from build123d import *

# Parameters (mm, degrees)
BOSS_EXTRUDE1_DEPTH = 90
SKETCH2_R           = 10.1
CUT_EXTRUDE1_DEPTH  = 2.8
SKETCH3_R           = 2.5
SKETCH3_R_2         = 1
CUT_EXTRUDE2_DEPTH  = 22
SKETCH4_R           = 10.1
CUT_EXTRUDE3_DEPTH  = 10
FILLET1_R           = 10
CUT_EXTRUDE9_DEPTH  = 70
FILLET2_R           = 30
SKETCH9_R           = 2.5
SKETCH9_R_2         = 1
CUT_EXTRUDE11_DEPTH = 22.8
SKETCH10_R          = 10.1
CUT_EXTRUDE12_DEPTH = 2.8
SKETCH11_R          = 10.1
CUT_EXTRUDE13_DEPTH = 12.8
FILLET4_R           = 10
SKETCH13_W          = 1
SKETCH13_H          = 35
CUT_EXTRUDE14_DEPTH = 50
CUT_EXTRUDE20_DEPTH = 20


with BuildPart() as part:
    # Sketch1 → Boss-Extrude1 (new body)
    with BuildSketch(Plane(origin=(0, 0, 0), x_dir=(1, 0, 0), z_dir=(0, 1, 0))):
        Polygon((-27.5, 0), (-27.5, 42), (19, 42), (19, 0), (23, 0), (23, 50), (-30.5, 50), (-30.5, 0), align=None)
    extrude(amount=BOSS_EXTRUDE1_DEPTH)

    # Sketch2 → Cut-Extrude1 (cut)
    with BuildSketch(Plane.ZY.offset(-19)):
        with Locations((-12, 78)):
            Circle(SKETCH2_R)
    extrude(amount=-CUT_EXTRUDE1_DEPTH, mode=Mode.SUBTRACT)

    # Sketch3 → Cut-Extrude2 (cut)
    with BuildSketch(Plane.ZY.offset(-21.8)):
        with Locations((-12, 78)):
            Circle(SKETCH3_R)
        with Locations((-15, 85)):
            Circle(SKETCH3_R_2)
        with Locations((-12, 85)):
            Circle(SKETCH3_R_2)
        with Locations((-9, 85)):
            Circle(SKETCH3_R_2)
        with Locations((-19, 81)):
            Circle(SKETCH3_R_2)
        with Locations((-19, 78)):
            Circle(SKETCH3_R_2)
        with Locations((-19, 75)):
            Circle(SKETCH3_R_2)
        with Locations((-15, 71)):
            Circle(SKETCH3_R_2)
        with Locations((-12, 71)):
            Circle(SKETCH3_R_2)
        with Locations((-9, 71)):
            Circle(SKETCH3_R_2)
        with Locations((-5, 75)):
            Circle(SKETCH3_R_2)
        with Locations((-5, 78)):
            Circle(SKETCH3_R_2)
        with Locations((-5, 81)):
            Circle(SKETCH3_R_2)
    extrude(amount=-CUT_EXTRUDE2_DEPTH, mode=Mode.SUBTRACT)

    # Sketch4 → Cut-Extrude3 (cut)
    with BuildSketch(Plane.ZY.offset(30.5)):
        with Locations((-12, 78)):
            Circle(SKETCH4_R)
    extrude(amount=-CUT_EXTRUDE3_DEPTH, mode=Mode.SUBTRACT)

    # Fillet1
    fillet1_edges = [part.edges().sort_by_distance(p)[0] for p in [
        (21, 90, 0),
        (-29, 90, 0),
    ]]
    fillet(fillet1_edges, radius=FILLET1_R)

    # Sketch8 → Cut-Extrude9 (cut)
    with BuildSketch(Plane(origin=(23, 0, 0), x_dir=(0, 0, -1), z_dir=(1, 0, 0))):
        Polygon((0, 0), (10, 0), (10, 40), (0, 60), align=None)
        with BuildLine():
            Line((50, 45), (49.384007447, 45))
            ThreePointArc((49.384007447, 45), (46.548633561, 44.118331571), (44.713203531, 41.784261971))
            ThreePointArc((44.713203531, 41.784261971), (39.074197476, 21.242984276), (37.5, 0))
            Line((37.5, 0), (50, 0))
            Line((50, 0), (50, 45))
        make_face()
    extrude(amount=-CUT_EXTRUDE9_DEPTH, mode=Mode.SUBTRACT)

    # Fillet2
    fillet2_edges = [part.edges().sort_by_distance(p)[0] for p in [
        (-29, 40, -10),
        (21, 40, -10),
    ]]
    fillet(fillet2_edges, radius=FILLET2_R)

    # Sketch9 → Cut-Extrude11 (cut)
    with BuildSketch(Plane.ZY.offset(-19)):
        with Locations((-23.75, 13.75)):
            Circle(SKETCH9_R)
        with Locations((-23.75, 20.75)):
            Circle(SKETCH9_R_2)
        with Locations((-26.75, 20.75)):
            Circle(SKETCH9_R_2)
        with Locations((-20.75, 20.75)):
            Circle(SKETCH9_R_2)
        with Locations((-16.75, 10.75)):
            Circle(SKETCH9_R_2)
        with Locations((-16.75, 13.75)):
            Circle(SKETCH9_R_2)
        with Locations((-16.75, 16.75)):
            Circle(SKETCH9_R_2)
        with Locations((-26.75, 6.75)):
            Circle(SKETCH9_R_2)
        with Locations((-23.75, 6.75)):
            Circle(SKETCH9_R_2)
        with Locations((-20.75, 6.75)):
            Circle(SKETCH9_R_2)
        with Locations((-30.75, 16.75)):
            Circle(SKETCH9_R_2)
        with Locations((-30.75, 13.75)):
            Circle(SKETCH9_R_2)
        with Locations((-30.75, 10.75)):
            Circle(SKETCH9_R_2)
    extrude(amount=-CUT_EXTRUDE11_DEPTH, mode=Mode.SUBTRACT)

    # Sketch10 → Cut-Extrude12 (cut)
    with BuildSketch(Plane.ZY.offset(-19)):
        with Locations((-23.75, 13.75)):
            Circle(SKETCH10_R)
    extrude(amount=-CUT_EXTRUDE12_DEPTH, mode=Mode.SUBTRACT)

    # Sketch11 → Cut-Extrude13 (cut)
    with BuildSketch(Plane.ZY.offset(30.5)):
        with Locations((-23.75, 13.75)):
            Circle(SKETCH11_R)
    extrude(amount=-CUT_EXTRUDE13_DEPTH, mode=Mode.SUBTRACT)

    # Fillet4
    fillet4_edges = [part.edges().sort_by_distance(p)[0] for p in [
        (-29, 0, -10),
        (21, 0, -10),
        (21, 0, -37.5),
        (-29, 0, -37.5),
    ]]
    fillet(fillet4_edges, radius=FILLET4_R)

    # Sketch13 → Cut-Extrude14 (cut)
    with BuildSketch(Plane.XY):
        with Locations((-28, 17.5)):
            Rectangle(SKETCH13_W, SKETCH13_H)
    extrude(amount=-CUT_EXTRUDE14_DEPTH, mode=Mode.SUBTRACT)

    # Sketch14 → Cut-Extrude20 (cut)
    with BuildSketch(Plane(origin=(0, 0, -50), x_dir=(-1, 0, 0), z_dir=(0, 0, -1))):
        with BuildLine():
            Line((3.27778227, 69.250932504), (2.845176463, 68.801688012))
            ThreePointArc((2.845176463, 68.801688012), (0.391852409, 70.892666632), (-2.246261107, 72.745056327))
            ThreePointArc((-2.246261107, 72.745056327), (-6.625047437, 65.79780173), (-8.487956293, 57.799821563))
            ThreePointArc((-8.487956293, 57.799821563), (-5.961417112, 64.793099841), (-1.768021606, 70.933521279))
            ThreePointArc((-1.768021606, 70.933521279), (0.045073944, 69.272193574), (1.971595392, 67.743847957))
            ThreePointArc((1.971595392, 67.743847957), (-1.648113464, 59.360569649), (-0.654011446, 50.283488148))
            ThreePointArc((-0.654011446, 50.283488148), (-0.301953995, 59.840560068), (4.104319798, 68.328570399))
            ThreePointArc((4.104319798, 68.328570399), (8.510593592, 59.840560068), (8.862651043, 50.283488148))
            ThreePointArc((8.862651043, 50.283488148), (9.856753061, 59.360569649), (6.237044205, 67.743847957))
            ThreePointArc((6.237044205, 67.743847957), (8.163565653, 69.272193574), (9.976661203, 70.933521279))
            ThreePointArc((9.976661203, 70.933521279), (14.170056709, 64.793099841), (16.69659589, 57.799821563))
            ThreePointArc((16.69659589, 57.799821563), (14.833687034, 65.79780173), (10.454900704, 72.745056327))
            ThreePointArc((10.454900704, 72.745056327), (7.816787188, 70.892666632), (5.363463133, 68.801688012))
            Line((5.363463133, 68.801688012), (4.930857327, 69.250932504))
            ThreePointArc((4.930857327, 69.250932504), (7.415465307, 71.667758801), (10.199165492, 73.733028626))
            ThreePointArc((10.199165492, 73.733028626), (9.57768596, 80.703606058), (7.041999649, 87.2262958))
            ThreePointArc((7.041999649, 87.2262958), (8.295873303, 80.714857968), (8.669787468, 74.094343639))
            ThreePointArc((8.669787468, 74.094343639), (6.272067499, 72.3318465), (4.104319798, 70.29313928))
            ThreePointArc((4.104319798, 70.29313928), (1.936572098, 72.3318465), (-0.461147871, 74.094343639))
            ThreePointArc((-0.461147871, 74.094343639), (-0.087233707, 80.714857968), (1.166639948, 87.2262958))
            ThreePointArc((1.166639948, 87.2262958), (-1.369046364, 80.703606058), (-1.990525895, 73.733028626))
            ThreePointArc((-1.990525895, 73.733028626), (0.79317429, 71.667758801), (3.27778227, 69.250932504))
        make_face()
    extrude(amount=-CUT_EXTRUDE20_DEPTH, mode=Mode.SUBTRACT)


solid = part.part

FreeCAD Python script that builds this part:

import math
import FreeCAD as App
import Part
import Sketcher

V = App.Vector


def edges_at(feature, points):
    """Names of the edges that pass closest to the given points."""
    edges = feature.Shape.Edges
    near = lambda p: min(range(len(edges)), key=lambda i: edges[i].distToShape(Part.Vertex(*p))[0])
    return sorted({f"Edge{near(p) + 1}" for p in points})


def add_polygon(sketch, points):
    """Adds a closed chain of lines whose ends are joined by coincident constraints."""
    first, n = sketch.GeometryCount, len(points)
    for a, b in zip(points, points[1:] + points[:1]):
        sketch.addGeometry(Part.LineSegment(App.Vector(*a, 0), App.Vector(*b, 0)), False)
    for i in range(n):
        sketch.addConstraint(Sketcher.Constraint("Coincident", first + i, 2, first + (i + 1) % n, 1))

doc = App.newDocument("Part")
body = doc.addObject("PartDesign::Body", "Body")

# Sketch on XZ plane
sketch1 = doc.addObject("Sketcher::SketchObject", "Sketch")
body.addObject(sketch1)
sketch1.AttachmentSupport = (doc.XZ_Plane, [""])
sketch1.MapMode = "FlatFace"
add_polygon(sketch1, [(-27.5, 0), (-27.5, -42), (19, -42), (19, 0), (23, 0), (23, -50), (-30.5, -50), (-30.5, 0)])  # lines 0-7
sketch1.addConstraint(Sketcher.Constraint("Vertical", 0))
sketch1.addConstraint(Sketcher.Constraint("Horizontal", 1))
sketch1.addConstraint(Sketcher.Constraint("Vertical", 2))
sketch1.addConstraint(Sketcher.Constraint("Horizontal", 3))
sketch1.addConstraint(Sketcher.Constraint("Vertical", 4))
sketch1.addConstraint(Sketcher.Constraint("Horizontal", 5))
sketch1.addConstraint(Sketcher.Constraint("Vertical", 6))
sketch1.addConstraint(Sketcher.Constraint("Horizontal", 7))
sketch1.addConstraint(Sketcher.Constraint("PointOnObject", 2, 2, -1))
sketch1.addConstraint(Sketcher.Constraint("PointOnObject", 6, 2, -1))
sketch1.addConstraint(Sketcher.Constraint("DistanceX", 3, 1, 3, 2, 4.0))
sketch1.addConstraint(Sketcher.Constraint("DistanceX", 7, 1, 7, 2, 3.0))
sketch1.addConstraint(Sketcher.Constraint("DistanceY", 0, 2, 0, 1, 42.0))
sketch1.addConstraint(Sketcher.Constraint("DistanceY", 4, 2, 4, 1, 50.0))
sketch1.addConstraint(Sketcher.Constraint("DistanceX", 1, 1, 1, 2, 46.5))
sketch1.addConstraint(Sketcher.Constraint("DistanceX", -1, 1, 1, 2, 19.0))
pad1 = doc.addObject("PartDesign::Pad", "Pad")
body.addObject(pad1)
pad1.Profile = sketch1
pad1.Length = 90
pad1.Reversed = True

# Sketch on YZ plane
sketch2 = doc.addObject("Sketcher::SketchObject", "Sketch001")
body.addObject(sketch2)
sketch2.AttachmentSupport = (doc.YZ_Plane, [""])
sketch2.MapMode = "FlatFace"
sketch2.AttachmentOffset = App.Placement(V(0, 0, 19), App.Rotation())
sketch2.addGeometry(Part.Circle(V(78, -12, 0), V(0, 0, 1), 10), False)
sketch2.addConstraint(Sketcher.Constraint("Diameter", 0, 20.2))
sketch2.addConstraint(Sketcher.Constraint("DistanceX", -1, 1, 0, 3, 78.0))
sketch2.addConstraint(Sketcher.Constraint("DistanceY", 0, 3, -1, 1, 12.0))
pocket1 = doc.addObject("PartDesign::Pocket", "Pocket")
body.addObject(pocket1)
pocket1.Profile = sketch2
pocket1.Length = 2.8
pocket1.Reversed = True

# Sketch on YZ plane
sketch3 = doc.addObject("Sketcher::SketchObject", "Sketch002")
body.addObject(sketch3)
sketch3.AttachmentSupport = (doc.YZ_Plane, [""])
sketch3.MapMode = "FlatFace"
sketch3.AttachmentOffset = App.Placement(V(0, 0, 21.8), App.Rotation())
sketch3.addGeometry(Part.Circle(V(78, -12, 0), V(0, 0, 1), 2.5), False)
sketch3.addGeometry(Part.Circle(V(85, -15, 0), V(0, 0, 1), 1), False)
sketch3.addGeometry(Part.Circle(V(85, -12, 0), V(0, 0, 1), 1), False)
sketch3.addGeometry(Part.Circle(V(85, -9, 0), V(0, 0, 1), 1), False)
sketch3.addGeometry(Part.Circle(V(81, -19, 0), V(0, 0, 1), 1), False)
sketch3.addGeometry(Part.Circle(V(78, -19, 0), V(0, 0, 1), 1), False)
sketch3.addGeometry(Part.Circle(V(75, -19, 0), V(0, 0, 1), 1), False)
sketch3.addGeometry(Part.Circle(V(71, -15, 0), V(0, 0, 1), 1), False)
sketch3.addGeometry(Part.Circle(V(71, -12, 0), V(0, 0, 1), 1), False)
sketch3.addGeometry(Part.Circle(V(71, -9, 0), V(0, 0, 1), 1), False)
sketch3.addGeometry(Part.Circle(V(75, -5, 0), V(0, 0, 1), 1), False)
sketch3.addGeometry(Part.Circle(V(78, -5, 0), V(0, 0, 1), 1), False)
sketch3.addGeometry(Part.Circle(V(81, -5, 0), V(0, 0, 1), 1), False)
sketch3.addConstraint(Sketcher.Constraint("Equal", 1, 2))
sketch3.addConstraint(Sketcher.Constraint("Equal", 2, 3))
sketch3.addConstraint(Sketcher.Constraint("Equal", 3, 4))
sketch3.addConstraint(Sketcher.Constraint("Equal", 4, 5))
sketch3.addConstraint(Sketcher.Constraint("Equal", 5, 6))
sketch3.addConstraint(Sketcher.Constraint("Equal", 6, 7))
sketch3.addConstraint(Sketcher.Constraint("Equal", 7, 8))
sketch3.addConstraint(Sketcher.Constraint("Equal", 8, 9))
sketch3.addConstraint(Sketcher.Constraint("Equal", 9, 10))
sketch3.addConstraint(Sketcher.Constraint("Equal", 10, 11))
sketch3.addConstraint(Sketcher.Constraint("Equal", 11, 12))
sketch3.addConstraint(Sketcher.Constraint("Horizontal", 0, 3, 2, 3))
sketch3.addConstraint(Sketcher.Constraint("Horizontal", 4, 3, 5, 3))
sketch3.addConstraint(Sketcher.Constraint("Horizontal", 5, 3, 6, 3))
sketch3.addConstraint(Sketcher.Constraint("Horizontal", 1, 3, 7, 3))
sketch3.addConstraint(Sketcher.Constraint("Horizontal", 2, 3, 8, 3))
sketch3.addConstraint(Sketcher.Constraint("Horizontal", 3, 3, 9, 3))
sketch3.addConstraint(Sketcher.Constraint("Horizontal", 10, 3, 11, 3))
sketch3.addConstraint(Sketcher.Constraint("Horizontal", 11, 3, 12, 3))
sketch3.addConstraint(Sketcher.Constraint("Vertical", 1, 3, 2, 3))
sketch3.addConstraint(Sketcher.Constraint("Vertical", 2, 3, 3, 3))
sketch3.addConstraint(Sketcher.Constraint("Vertical", 0, 3, 5, 3))
sketch3.addConstraint(Sketcher.Constraint("Vertical", 7, 3, 8, 3))
sketch3.addConstraint(Sketcher.Constraint("Vertical", 8, 3, 9, 3))
sketch3.addConstraint(Sketcher.Constraint("Vertical", 6, 3, 10, 3))
sketch3.addConstraint(Sketcher.Constraint("Vertical", 5, 3, 11, 3))
sketch3.addConstraint(Sketcher.Constraint("Vertical", 4, 3, 12, 3))
sketch3.addConstraint(Sketcher.Constraint("Diameter", 0, 5.0))
sketch3.addConstraint(Sketcher.Constraint("Diameter", 1, 2.0))
sketch3.addConstraint(Sketcher.Constraint("DistanceX", -1, 1, 0, 3, 78.0))
sketch3.addConstraint(Sketcher.Constraint("DistanceY", 0, 3, -1, 1, 12.0))
sketch3.addConstraint(Sketcher.Constraint("DistanceX", -1, 1, 1, 3, 85.0))
sketch3.addConstraint(Sketcher.Constraint("DistanceY", 1, 3, -1, 1, 15.0))
sketch3.addConstraint(Sketcher.Constraint("DistanceY", 3, 3, -1, 1, 9.0))
sketch3.addConstraint(Sketcher.Constraint("DistanceX", -1, 1, 4, 3, 81.0))
sketch3.addConstraint(Sketcher.Constraint("DistanceY", 4, 3, -1, 1, 19.0))
sketch3.addConstraint(Sketcher.Constraint("DistanceX", -1, 1, 6, 3, 75.0))
sketch3.addConstraint(Sketcher.Constraint("DistanceX", -1, 1, 7, 3, 71.0))
sketch3.addConstraint(Sketcher.Constraint("DistanceY", 10, 3, -1, 1, 5.0))
pocket2 = doc.addObject("PartDesign::Pocket", "Pocket001")
body.addObject(pocket2)
pocket2.Profile = sketch3
pocket2.Length = 22
pocket2.Reversed = True

# Sketch on YZ plane
sketch4 = doc.addObject("Sketcher::SketchObject", "Sketch003")
body.addObject(sketch4)
sketch4.AttachmentSupport = (doc.YZ_Plane, [""])
sketch4.MapMode = "FlatFace"
sketch4.AttachmentOffset = App.Placement(V(0, 0, -30.5), App.Rotation())
sketch4.addGeometry(Part.Circle(V(78, -12, 0), V(0, 0, 1), 10), False)
sketch4.addConstraint(Sketcher.Constraint("Diameter", 0, 20.2))
sketch4.addConstraint(Sketcher.Constraint("DistanceX", -1, 1, 0, 3, 78.0))
sketch4.addConstraint(Sketcher.Constraint("DistanceY", 0, 3, -1, 1, 12.0))
pocket3 = doc.addObject("PartDesign::Pocket", "Pocket002")
body.addObject(pocket3)
pocket3.Profile = sketch4
pocket3.Length = 10
pocket3.Reversed = True
doc.recompute()

fillet = doc.addObject("PartDesign::Fillet", "Fillet")
body.addObject(fillet)
fillet.Base = (pocket3, edges_at(pocket3, [(21, 90, 0), (-29, 90, 0)]))
fillet.Radius = 10

# Sketch on YZ plane
sketch5 = doc.addObject("Sketcher::SketchObject", "Sketch004")
body.addObject(sketch5)
sketch5.AttachmentSupport = (doc.YZ_Plane, [""])
sketch5.MapMode = "FlatFace"
sketch5.AttachmentOffset = App.Placement(V(0, 0, 23), App.Rotation())
add_polygon(sketch5, [(0, 0), (0, -10), (40, -10), (60, 0)])  # lines 0-3
sketch5.addGeometry(Part.LineSegment(V(45, -50, 0), V(45, -49.4, 0)), False)  # 4
sketch5.addGeometry(Part.ArcOfCircle(Part.Circle(V(40, -49.4, 0), V(0, 0, 1), 5), math.radians(0), math.radians(69)), False)  # 5
sketch5.addGeometry(Part.ArcOfCircle(Part.Circle(V(2.5, -147.5, 0), V(0, 0, 1), 110), math.radians(69), math.radians(91)), False)  # 6
sketch5.addGeometry(Part.LineSegment(V(0, -37.5, 0), V(0, -50, 0)), False)  # 7
sketch5.addGeometry(Part.LineSegment(V(0, -50, 0), V(45, -50, 0)), False)  # 8
sketch5.addConstraint(Sketcher.Constraint("Tangent", 4, 2, 5, 1))
sketch5.addConstraint(Sketcher.Constraint("Tangent", 5, 2, 6, 1))
sketch5.addConstraint(Sketcher.Constraint("Coincident", 6, 2, 7, 1))
sketch5.addConstraint(Sketcher.Constraint("Coincident", 7, 2, 8, 1))
sketch5.addConstraint(Sketcher.Constraint("Coincident", 8, 2, 4, 1))
sketch5.addConstraint(Sketcher.Constraint("Vertical", 0))
sketch5.addConstraint(Sketcher.Constraint("Horizontal", 1))
sketch5.addConstraint(Sketcher.Constraint("Horizontal", 3))
sketch5.addConstraint(Sketcher.Constraint("Vertical", 4))
sketch5.addConstraint(Sketcher.Constraint("Vertical", 7))
sketch5.addConstraint(Sketcher.Constraint("Horizontal", 8))
sketch5.addConstraint(Sketcher.Constraint("Coincident", 3, 2, -1, 1))
sketch5.addConstraint(Sketcher.Constraint("PointOnObject", 6, 2, -2))
sketch5.addConstraint(Sketcher.Constraint("Vertical", 5, 3, 1, 2))
sketch5.addConstraint(Sketcher.Constraint("Radius", 5, 5.0))
sketch5.addConstraint(Sketcher.Constraint("Radius", 6, 110.0))
sketch5.addConstraint(Sketcher.Constraint("DistanceX", 1, 1, 1, 2, 40.0))
sketch5.addConstraint(Sketcher.Constraint("DistanceX", 3, 2, 3, 1, 60.0))
sketch5.addConstraint(Sketcher.Constraint("DistanceY", 0, 2, 0, 1, 10.0))
sketch5.addConstraint(Sketcher.Constraint("DistanceY", 7, 2, 7, 1, 12.5))
sketch5.addConstraint(Sketcher.Constraint("DistanceY", 7, 2, -1, 1, 50.0))
sketch5.addConstraint(Sketcher.Constraint("DistanceX", -1, 1, 6, 3, 2.530499))
pocket4 = doc.addObject("PartDesign::Pocket", "Pocket003")
body.addObject(pocket4)
pocket4.Profile = sketch5
pocket4.Length = 70
doc.recompute()

fillet2 = doc.addObject("PartDesign::Fillet", "Fillet001")
body.addObject(fillet2)
fillet2.Base = (pocket4, edges_at(pocket4, [(-29, 40, -10), (21, 40, -10)]))
fillet2.Radius = 30

# Sketch on YZ plane
sketch6 = doc.addObject("Sketcher::SketchObject", "Sketch005")
body.addObject(sketch6)
sketch6.AttachmentSupport = (doc.YZ_Plane, [""])
sketch6.MapMode = "FlatFace"
sketch6.AttachmentOffset = App.Placement(V(0, 0, 19), App.Rotation())
sketch6.addGeometry(Part.Circle(V(13.8, -23.8, 0), V(0, 0, 1), 2.5), False)
sketch6.addGeometry(Part.Circle(V(20.8, -23.8, 0), V(0, 0, 1), 1), False)
sketch6.addGeometry(Part.Circle(V(20.8, -26.8, 0), V(0, 0, 1), 1), False)
sketch6.addGeometry(Part.Circle(V(20.8, -20.8, 0), V(0, 0, 1), 1), False)
sketch6.addGeometry(Part.Circle(V(10.8, -16.8, 0), V(0, 0, 1), 1), False)
sketch6.addGeometry(Part.Circle(V(13.8, -16.8, 0), V(0, 0, 1), 1), False)
sketch6.addGeometry(Part.Circle(V(16.8, -16.8, 0), V(0, 0, 1), 1), False)
sketch6.addGeometry(Part.Circle(V(6.8, -26.8, 0), V(0, 0, 1), 1), False)
sketch6.addGeometry(Part.Circle(V(6.8, -23.8, 0), V(0, 0, 1), 1), False)
sketch6.addGeometry(Part.Circle(V(6.8, -20.8, 0), V(0, 0, 1), 1), False)
sketch6.addGeometry(Part.Circle(V(16.8, -30.8, 0), V(0, 0, 1), 1), False)
sketch6.addGeometry(Part.Circle(V(13.8, -30.8, 0), V(0, 0, 1), 1), False)
sketch6.addGeometry(Part.Circle(V(10.8, -30.8, 0), V(0, 0, 1), 1), False)
sketch6.addConstraint(Sketcher.Constraint("Equal", 1, 2))
sketch6.addConstraint(Sketcher.Constraint("Equal", 2, 3))
sketch6.addConstraint(Sketcher.Constraint("Equal", 3, 4))
sketch6.addConstraint(Sketcher.Constraint("Equal", 4, 5))
sketch6.addConstraint(Sketcher.Constraint("Equal", 5, 6))
sketch6.addConstraint(Sketcher.Constraint("Equal", 6, 7))
sketch6.addConstraint(Sketcher.Constraint("Equal", 7, 8))
sketch6.addConstraint(Sketcher.Constraint("Equal", 8, 9))
sketch6.addConstraint(Sketcher.Constraint("Equal", 9, 10))
sketch6.addConstraint(Sketcher.Constraint("Equal", 10, 11))
sketch6.addConstraint(Sketcher.Constraint("Equal", 11, 12))
sketch6.addConstraint(Sketcher.Constraint("Horizontal", 0, 3, 1, 3))
sketch6.addConstraint(Sketcher.Constraint("Horizontal", 4, 3, 5, 3))
sketch6.addConstraint(Sketcher.Constraint("Horizontal", 5, 3, 6, 3))
sketch6.addConstraint(Sketcher.Constraint("Horizontal", 2, 3, 7, 3))
sketch6.addConstraint(Sketcher.Constraint("Horizontal", 1, 3, 8, 3))
sketch6.addConstraint(Sketcher.Constraint("Horizontal", 3, 3, 9, 3))
sketch6.addConstraint(Sketcher.Constraint("Horizontal", 10, 3, 11, 3))
sketch6.addConstraint(Sketcher.Constraint("Horizontal", 11, 3, 12, 3))
sketch6.addConstraint(Sketcher.Constraint("Vertical", 1, 3, 2, 3))
sketch6.addConstraint(Sketcher.Constraint("Vertical", 2, 3, 3, 3))
sketch6.addConstraint(Sketcher.Constraint("Vertical", 0, 3, 5, 3))
sketch6.addConstraint(Sketcher.Constraint("Vertical", 7, 3, 8, 3))
sketch6.addConstraint(Sketcher.Constraint("Vertical", 8, 3, 9, 3))
sketch6.addConstraint(Sketcher.Constraint("Vertical", 6, 3, 10, 3))
sketch6.addConstraint(Sketcher.Constraint("Vertical", 5, 3, 11, 3))
sketch6.addConstraint(Sketcher.Constraint("Vertical", 4, 3, 12, 3))
sketch6.addConstraint(Sketcher.Constraint("Diameter", 0, 5.0))
sketch6.addConstraint(Sketcher.Constraint("Diameter", 1, 2.0))
sketch6.addConstraint(Sketcher.Constraint("DistanceX", 0, 3, 1, 3, 7.0))
sketch6.addConstraint(Sketcher.Constraint("DistanceY", 2, 3, 1, 3, 3.0))
sketch6.addConstraint(Sketcher.Constraint("DistanceY", 1, 3, 3, 3, 3.0))
sketch6.addConstraint(Sketcher.Constraint("DistanceX", 4, 3, 0, 3, 3.0))
sketch6.addConstraint(Sketcher.Constraint("DistanceY", 0, 3, 4, 3, 7.0))
sketch6.addConstraint(Sketcher.Constraint("DistanceX", 5, 3, 6, 3, 3.0))
sketch6.addConstraint(Sketcher.Constraint("DistanceX", 7, 3, 0, 3, 7.0))
sketch6.addConstraint(Sketcher.Constraint("DistanceY", 10, 3, 2, 3, 4.0))
sketch6.addConstraint(Sketcher.Constraint("DistanceX", -1, 1, 0, 3, 13.75))
sketch6.addConstraint(Sketcher.Constraint("DistanceY", 0, 3, -1, 1, 23.75))
pocket5 = doc.addObject("PartDesign::Pocket", "Pocket004")
body.addObject(pocket5)
pocket5.Profile = sketch6
pocket5.Length = 22.8
pocket5.Reversed = True

# Sketch on YZ plane
sketch7 = doc.addObject("Sketcher::SketchObject", "Sketch006")
body.addObject(sketch7)
sketch7.AttachmentSupport = (doc.YZ_Plane, [""])
sketch7.MapMode = "FlatFace"
sketch7.AttachmentOffset = App.Placement(V(0, 0, 19), App.Rotation())
sketch7.addGeometry(Part.Circle(V(14, -24, 0), V(0, 0, 1), 10), False)
sketch7.addConstraint(Sketcher.Constraint("Diameter", 0, 20.2))
sketch7.addConstraint(Sketcher.Constraint("DistanceX", -1, 1, 0, 3, 13.75))
sketch7.addConstraint(Sketcher.Constraint("DistanceY", 0, 3, -1, 1, 23.75))
pocket6 = doc.addObject("PartDesign::Pocket", "Pocket005")
body.addObject(pocket6)
pocket6.Profile = sketch7
pocket6.Length = 2.8
pocket6.Reversed = True

# Sketch on YZ plane
sketch8 = doc.addObject("Sketcher::SketchObject", "Sketch007")
body.addObject(sketch8)
sketch8.AttachmentSupport = (doc.YZ_Plane, [""])
sketch8.MapMode = "FlatFace"
sketch8.AttachmentOffset = App.Placement(V(0, 0, -30.5), App.Rotation())
sketch8.addGeometry(Part.Circle(V(14, -24, 0), V(0, 0, 1), 10), False)
sketch8.addConstraint(Sketcher.Constraint("Diameter", 0, 20.2))
sketch8.addConstraint(Sketcher.Constraint("DistanceX", -1, 1, 0, 3, 13.75))
sketch8.addConstraint(Sketcher.Constraint("DistanceY", 0, 3, -1, 1, 23.75))
pocket7 = doc.addObject("PartDesign::Pocket", "Pocket006")
body.addObject(pocket7)
pocket7.Profile = sketch8
pocket7.Length = 12.8
pocket7.Reversed = True
doc.recompute()

fillet3 = doc.addObject("PartDesign::Fillet", "Fillet002")
body.addObject(fillet3)
fillet3.Base = (pocket7, edges_at(pocket7, [
    (-29, 0, -10),
    (21, 0, -10),
    (21, 0, -37.5),
    (-29, 0, -37.5),
]))
fillet3.Radius = 10

# Sketch on XY plane
sketch9 = doc.addObject("Sketcher::SketchObject", "Sketch008")
body.addObject(sketch9)
sketch9.AttachmentSupport = (doc.XY_Plane, [""])
sketch9.MapMode = "FlatFace"
add_polygon(sketch9, [(-28.5, 35), (-28.5, 0), (-27.5, 0), (-27.5, 35)])  # lines 0-3
sketch9.addConstraint(Sketcher.Constraint("Vertical", 0))
sketch9.addConstraint(Sketcher.Constraint("Horizontal", 1))
sketch9.addConstraint(Sketcher.Constraint("Vertical", 2))
sketch9.addConstraint(Sketcher.Constraint("Horizontal", 3))
sketch9.addConstraint(Sketcher.Constraint("PointOnObject", 0, 2, -1))
sketch9.addConstraint(Sketcher.Constraint("DistanceX", 1, 1, 1, 2, 1.0))
sketch9.addConstraint(Sketcher.Constraint("DistanceY", 0, 2, 0, 1, 35.0))
sketch9.addConstraint(Sketcher.Constraint("DistanceX", 0, 2, -1, 1, 28.5))
pocket8 = doc.addObject("PartDesign::Pocket", "Pocket007")
body.addObject(pocket8)
pocket8.Profile = sketch9
pocket8.Length = 50

# Sketch on XY plane
sketch10 = doc.addObject("Sketcher::SketchObject", "Sketch009")
body.addObject(sketch10)
sketch10.AttachmentSupport = (doc.XY_Plane, [""])
sketch10.MapMode = "FlatFace"
sketch10.AttachmentOffset = App.Placement(V(0, 0, -50), App.Rotation())
sketch10.addGeometry(Part.LineSegment(V(-3.3, 69.3, 0), V(-2.8, 68.8, 0)), False)
sketch10.addGeometry(Part.ArcOfCircle(Part.Circle(V(20.7, 43.7, 0), V(0, 0, 1), 34.4), math.radians(122.39), math.radians(133.12)), False)
sketch10.addGeometry(Part.ArcOfCircle(Part.Circle(V(-16.2, 56.3, 0), V(0, 0, 1), 24.7), math.radians(4), math.radians(42)), False)
sketch10.addGeometry(Part.ArcOfCircle(Part.Circle(V(-20.3, 51.3, 0), V(0, 0, 1), 29.5), math.radians(13), math.radians(42)), False)
sketch10.addGeometry(Part.ArcOfCircle(Part.Circle(V(-22.5, 95.6, 0), V(0, 0, 1), 34.6), math.radians(-53.61), math.radians(-45.46)), False)
sketch10.addGeometry(Part.ArcOfCircle(Part.Circle(V(-16, 56.7, 0), V(0, 0, 1), 17.9), math.radians(-21), math.radians(38)), False)
sketch10.addGeometry(Part.ArcOfCircle(Part.Circle(V(-20.8, 54.3, 0), V(0, 0, 1), 21.8), math.radians(-11), math.radians(40)), False)
sketch10.addGeometry(Part.ArcOfCircle(Part.Circle(V(12.6, 54.3, 0), V(0, 0, 1), 21.8), math.radians(140), math.radians(191)), False)
sketch10.addGeometry(Part.ArcOfCircle(Part.Circle(V(7.8, 56.7, 0), V(0, 0, 1), 17.9), math.radians(142), math.radians(201)), False)
sketch10.addGeometry(Part.ArcOfCircle(Part.Circle(V(14.3, 95.6, 0), V(0, 0, 1), 34.6), math.radians(-134.54), math.radians(-126.39)), False)
sketch10.addGeometry(Part.ArcOfCircle(Part.Circle(V(12.1, 51.3, 0), V(0, 0, 1), 29.5), math.radians(138), math.radians(167)), False)
sketch10.addGeometry(Part.ArcOfCircle(Part.Circle(V(8, 56.3, 0), V(0, 0, 1), 24.7), math.radians(138), math.radians(176)), False)
sketch10.addGeometry(Part.ArcOfCircle(Part.Circle(V(-28.9, 43.7, 0), V(0, 0, 1), 34.4), math.radians(46.88), math.radians(57.61)), False)
sketch10.addGeometry(Part.LineSegment(V(-5.4, 68.8, 0), V(-4.9, 69.3, 0)), False)
sketch10.addGeometry(Part.ArcOfCircle(Part.Circle(V(-24.3, 51.8, 0), V(0, 0, 1), 26), math.radians(41.97), math.radians(57.25)), False)
sketch10.addGeometry(Part.ArcOfCircle(Part.Circle(V(14.7, 75, 0), V(0, 0, 1), 24.9), math.radians(151), math.radians(183)), False)
sketch10.addGeometry(Part.ArcOfCircle(Part.Circle(V(40.9, 74.6, 0), V(0, 0, 1), 49.6), math.radians(165.27), math.radians(180.6)), False)
sketch10.addGeometry(Part.ArcOfCircle(Part.Circle(V(-22, 53.4, 0), V(0, 0, 1), 24.6), math.radians(43.29), math.radians(57.14)), False)
sketch10.addGeometry(Part.ArcOfCircle(Part.Circle(V(13.8, 53.4, 0), V(0, 0, 1), 24.6), math.radians(122.86), math.radians(136.71)), False)
sketch10.addGeometry(Part.ArcOfCircle(Part.Circle(V(-49.1, 74.6, 0), V(0, 0, 1), 49.6), math.radians(-0.6), math.radians(14.73)), False)
sketch10.addGeometry(Part.ArcOfCircle(Part.Circle(V(-22.9, 75, 0), V(0, 0, 1), 24.9), math.radians(-3), math.radians(29)), False)
sketch10.addGeometry(Part.ArcOfCircle(Part.Circle(V(16.1, 51.8, 0), V(0, 0, 1), 26), math.radians(122.75), math.radians(138.03)), False)
sketch10.addConstraint(Sketcher.Constraint("Coincident", 0, 2, 1, 2))
sketch10.addConstraint(Sketcher.Constraint("Coincident", 1, 1, 2, 2))
sketch10.addConstraint(Sketcher.Constraint("Coincident", 2, 1, 3, 1))
sketch10.addConstraint(Sketcher.Constraint("Coincident", 3, 2, 4, 2))
sketch10.addConstraint(Sketcher.Constraint("Coincident", 4, 1, 5, 2))
sketch10.addConstraint(Sketcher.Constraint("Coincident", 5, 1, 6, 1))
sketch10.addConstraint(Sketcher.Constraint("Coincident", 6, 2, 7, 1))
sketch10.addConstraint(Sketcher.Constraint("Coincident", 7, 2, 8, 2))
sketch10.addConstraint(Sketcher.Constraint("Coincident", 8, 1, 9, 2))
sketch10.addConstraint(Sketcher.Constraint("Coincident", 9, 1, 10, 1))
sketch10.addConstraint(Sketcher.Constraint("Coincident", 10, 2, 11, 2))
sketch10.addConstraint(Sketcher.Constraint("Coincident", 11, 1, 12, 2))
sketch10.addConstraint(Sketcher.Constraint("Coincident", 12, 1, 13, 1))
sketch10.addConstraint(Sketcher.Constraint("Coincident", 13, 2, 14, 1))
sketch10.addConstraint(Sketcher.Constraint("Coincident", 14, 2, 15, 2))
sketch10.addConstraint(Sketcher.Constraint("Coincident", 15, 1, 16, 1))
sketch10.addConstraint(Sketcher.Constraint("Coincident", 16, 2, 17, 2))
sketch10.addConstraint(Sketcher.Constraint("Coincident", 17, 1, 18, 2))
sketch10.addConstraint(Sketcher.Constraint("Coincident", 18, 1, 19, 1))
sketch10.addConstraint(Sketcher.Constraint("Coincident", 19, 2, 20, 2))
sketch10.addConstraint(Sketcher.Constraint("Coincident", 20, 1, 21, 1))
sketch10.addConstraint(Sketcher.Constraint("Coincident", 21, 2, 0, 1))
sketch10.addConstraint(Sketcher.Constraint("Equal", 6, 7))
sketch10.addConstraint(Sketcher.Constraint("Equal", 5, 8))
sketch10.addConstraint(Sketcher.Constraint("Equal", 4, 9))
sketch10.addConstraint(Sketcher.Constraint("Equal", 3, 10))
sketch10.addConstraint(Sketcher.Constraint("Equal", 2, 11))
sketch10.addConstraint(Sketcher.Constraint("Equal", 1, 12))
sketch10.addConstraint(Sketcher.Constraint("Equal", 17, 18))
sketch10.addConstraint(Sketcher.Constraint("Equal", 16, 19))
sketch10.addConstraint(Sketcher.Constraint("Equal", 15, 20))
sketch10.addConstraint(Sketcher.Constraint("Equal", 14, 21))
sketch10.addConstraint(Sketcher.Constraint("Horizontal", 6, 3, 7, 3))
sketch10.addConstraint(Sketcher.Constraint("Horizontal", 5, 3, 8, 3))
sketch10.addConstraint(Sketcher.Constraint("Horizontal", 4, 3, 9, 3))
sketch10.addConstraint(Sketcher.Constraint("Horizontal", 3, 3, 10, 3))
sketch10.addConstraint(Sketcher.Constraint("Horizontal", 2, 3, 11, 3))
sketch10.addConstraint(Sketcher.Constraint("Horizontal", 1, 3, 12, 3))
sketch10.addConstraint(Sketcher.Constraint("Horizontal", 17, 3, 18, 3))
sketch10.addConstraint(Sketcher.Constraint("Horizontal", 16, 3, 19, 3))
sketch10.addConstraint(Sketcher.Constraint("Horizontal", 15, 3, 20, 3))
sketch10.addConstraint(Sketcher.Constraint("Horizontal", 14, 3, 21, 3))
sketch10.addConstraint(Sketcher.Constraint("Horizontal", 5, 1, 7, 2))
sketch10.addConstraint(Sketcher.Constraint("Horizontal", 4, 1, 8, 1))
sketch10.addConstraint(Sketcher.Constraint("Horizontal", 3, 2, 9, 1))
sketch10.addConstraint(Sketcher.Constraint("Horizontal", 2, 1, 10, 2))
sketch10.addConstraint(Sketcher.Constraint("Horizontal", 1, 1, 11, 1))
sketch10.addConstraint(Sketcher.Constraint("Horizontal", 0, 2, 12, 1))
sketch10.addConstraint(Sketcher.Constraint("Horizontal", 16, 2, 18, 1))
sketch10.addConstraint(Sketcher.Constraint("Horizontal", 15, 1, 19, 2))
sketch10.addConstraint(Sketcher.Constraint("Horizontal", 14, 2, 20, 1))
sketch10.addConstraint(Sketcher.Constraint("Horizontal", 13, 2, 21, 2))
sketch10.addConstraint(Sketcher.Constraint("Vertical", 6, 2, 17, 1))
sketch10.addConstraint(Sketcher.Constraint("Radius", 15, 24.912258))
sketch10.addConstraint(Sketcher.Constraint("Radius", 17, 24.638519))
sketch10.addConstraint(Sketcher.Constraint("DistanceX", 15, 1, -1, 1, 7.042))
sketch10.addConstraint(Sketcher.Constraint("Radius", 1, 34.432213))
sketch10.addConstraint(Sketcher.Constraint("Radius", 2, 24.734548))
sketch10.addConstraint(Sketcher.Constraint("Radius", 3, 29.529045))
sketch10.addConstraint(Sketcher.Constraint("Radius", 4, 34.598722))
sketch10.addConstraint(Sketcher.Constraint("Radius", 5, 17.871256))
sketch10.addConstraint(Sketcher.Constraint("Radius", 6, 21.813965))
sketch10.addConstraint(Sketcher.Constraint("Radius", 14, 26.029186))
sketch10.addConstraint(Sketcher.Constraint("Radius", 16, 49.589845))
sketch10.addConstraint(Sketcher.Constraint("DistanceX", 20, 3, 17, 3, 0.851))
sketch10.addConstraint(Sketcher.Constraint("DistanceX", -1, 1, 21, 3, 16.073399))
sketch10.addConstraint(Sketcher.Constraint("DistanceX", 11, 1, -1, 1, 10.454901))
sketch10.addConstraint(Sketcher.Constraint("DistanceY", 3, 3, 5, 3, 5.360302))
sketch10.addConstraint(Sketcher.Constraint("DistanceY", 6, 3, 2, 3, 1.9871))
sketch10.addConstraint(Sketcher.Constraint("DistanceX", 8, 3, 1, 3, 12.8762))
sketch10.addConstraint(Sketcher.Constraint("DistanceX", 0, 2, 3, 2, 4.613198))
sketch10.addConstraint(Sketcher.Constraint("DistanceY", 2, 1, 3, 2, 13.1337))
sketch10.addConstraint(Sketcher.Constraint("DistanceY", -1, 1, 2, 3, 56.265631))
sketch10.addConstraint(Sketcher.Constraint("DistanceY", -1, 1, 3, 3, 51.342751))
sketch10.addConstraint(Sketcher.Constraint("DistanceX", 14, 3, -1, 1, 24.282038))
sketch10.addConstraint(Sketcher.Constraint("DistanceY", -1, 1, 14, 3, 51.842592))
sketch10.addConstraint(Sketcher.Constraint("DistanceY", -1, 1, 15, 3, 75.027909))
sketch10.addConstraint(Sketcher.Constraint("DistanceX", -1, 1, 16, 3, 40.917329))
sketch10.addConstraint(Sketcher.Constraint("DistanceY", -1, 1, 0, 2, 68.801688))
sketch10.addConstraint(Sketcher.Constraint("DistanceY", -1, 1, 2, 1, 57.799822))
sketch10.addConstraint(Sketcher.Constraint("DistanceX", -1, 1, 3, 2, 1.768022))
sketch10.addConstraint(Sketcher.Constraint("DistanceX", -1, 1, 5, 1, 0.654011))
sketch10.addConstraint(Sketcher.Constraint("DistanceY", -1, 1, 14, 2, 73.733029))
sketch10.addConstraint(Sketcher.Constraint("DistanceY", -1, 1, 17, 1, 70.293139))
sketch10.addConstraint(Sketcher.Constraint("DistanceX", 4, 3, 2, 3, 6.298832))
sketch10.addConstraint(Sketcher.Constraint("DistanceX", 13, 2, 0, 2, 2.085681))
pocket9 = doc.addObject("PartDesign::Pocket", "Pocket008")
body.addObject(pocket9)
pocket9.Profile = sketch10
pocket9.Length = 20
pocket9.Reversed = True

doc.recompute()
